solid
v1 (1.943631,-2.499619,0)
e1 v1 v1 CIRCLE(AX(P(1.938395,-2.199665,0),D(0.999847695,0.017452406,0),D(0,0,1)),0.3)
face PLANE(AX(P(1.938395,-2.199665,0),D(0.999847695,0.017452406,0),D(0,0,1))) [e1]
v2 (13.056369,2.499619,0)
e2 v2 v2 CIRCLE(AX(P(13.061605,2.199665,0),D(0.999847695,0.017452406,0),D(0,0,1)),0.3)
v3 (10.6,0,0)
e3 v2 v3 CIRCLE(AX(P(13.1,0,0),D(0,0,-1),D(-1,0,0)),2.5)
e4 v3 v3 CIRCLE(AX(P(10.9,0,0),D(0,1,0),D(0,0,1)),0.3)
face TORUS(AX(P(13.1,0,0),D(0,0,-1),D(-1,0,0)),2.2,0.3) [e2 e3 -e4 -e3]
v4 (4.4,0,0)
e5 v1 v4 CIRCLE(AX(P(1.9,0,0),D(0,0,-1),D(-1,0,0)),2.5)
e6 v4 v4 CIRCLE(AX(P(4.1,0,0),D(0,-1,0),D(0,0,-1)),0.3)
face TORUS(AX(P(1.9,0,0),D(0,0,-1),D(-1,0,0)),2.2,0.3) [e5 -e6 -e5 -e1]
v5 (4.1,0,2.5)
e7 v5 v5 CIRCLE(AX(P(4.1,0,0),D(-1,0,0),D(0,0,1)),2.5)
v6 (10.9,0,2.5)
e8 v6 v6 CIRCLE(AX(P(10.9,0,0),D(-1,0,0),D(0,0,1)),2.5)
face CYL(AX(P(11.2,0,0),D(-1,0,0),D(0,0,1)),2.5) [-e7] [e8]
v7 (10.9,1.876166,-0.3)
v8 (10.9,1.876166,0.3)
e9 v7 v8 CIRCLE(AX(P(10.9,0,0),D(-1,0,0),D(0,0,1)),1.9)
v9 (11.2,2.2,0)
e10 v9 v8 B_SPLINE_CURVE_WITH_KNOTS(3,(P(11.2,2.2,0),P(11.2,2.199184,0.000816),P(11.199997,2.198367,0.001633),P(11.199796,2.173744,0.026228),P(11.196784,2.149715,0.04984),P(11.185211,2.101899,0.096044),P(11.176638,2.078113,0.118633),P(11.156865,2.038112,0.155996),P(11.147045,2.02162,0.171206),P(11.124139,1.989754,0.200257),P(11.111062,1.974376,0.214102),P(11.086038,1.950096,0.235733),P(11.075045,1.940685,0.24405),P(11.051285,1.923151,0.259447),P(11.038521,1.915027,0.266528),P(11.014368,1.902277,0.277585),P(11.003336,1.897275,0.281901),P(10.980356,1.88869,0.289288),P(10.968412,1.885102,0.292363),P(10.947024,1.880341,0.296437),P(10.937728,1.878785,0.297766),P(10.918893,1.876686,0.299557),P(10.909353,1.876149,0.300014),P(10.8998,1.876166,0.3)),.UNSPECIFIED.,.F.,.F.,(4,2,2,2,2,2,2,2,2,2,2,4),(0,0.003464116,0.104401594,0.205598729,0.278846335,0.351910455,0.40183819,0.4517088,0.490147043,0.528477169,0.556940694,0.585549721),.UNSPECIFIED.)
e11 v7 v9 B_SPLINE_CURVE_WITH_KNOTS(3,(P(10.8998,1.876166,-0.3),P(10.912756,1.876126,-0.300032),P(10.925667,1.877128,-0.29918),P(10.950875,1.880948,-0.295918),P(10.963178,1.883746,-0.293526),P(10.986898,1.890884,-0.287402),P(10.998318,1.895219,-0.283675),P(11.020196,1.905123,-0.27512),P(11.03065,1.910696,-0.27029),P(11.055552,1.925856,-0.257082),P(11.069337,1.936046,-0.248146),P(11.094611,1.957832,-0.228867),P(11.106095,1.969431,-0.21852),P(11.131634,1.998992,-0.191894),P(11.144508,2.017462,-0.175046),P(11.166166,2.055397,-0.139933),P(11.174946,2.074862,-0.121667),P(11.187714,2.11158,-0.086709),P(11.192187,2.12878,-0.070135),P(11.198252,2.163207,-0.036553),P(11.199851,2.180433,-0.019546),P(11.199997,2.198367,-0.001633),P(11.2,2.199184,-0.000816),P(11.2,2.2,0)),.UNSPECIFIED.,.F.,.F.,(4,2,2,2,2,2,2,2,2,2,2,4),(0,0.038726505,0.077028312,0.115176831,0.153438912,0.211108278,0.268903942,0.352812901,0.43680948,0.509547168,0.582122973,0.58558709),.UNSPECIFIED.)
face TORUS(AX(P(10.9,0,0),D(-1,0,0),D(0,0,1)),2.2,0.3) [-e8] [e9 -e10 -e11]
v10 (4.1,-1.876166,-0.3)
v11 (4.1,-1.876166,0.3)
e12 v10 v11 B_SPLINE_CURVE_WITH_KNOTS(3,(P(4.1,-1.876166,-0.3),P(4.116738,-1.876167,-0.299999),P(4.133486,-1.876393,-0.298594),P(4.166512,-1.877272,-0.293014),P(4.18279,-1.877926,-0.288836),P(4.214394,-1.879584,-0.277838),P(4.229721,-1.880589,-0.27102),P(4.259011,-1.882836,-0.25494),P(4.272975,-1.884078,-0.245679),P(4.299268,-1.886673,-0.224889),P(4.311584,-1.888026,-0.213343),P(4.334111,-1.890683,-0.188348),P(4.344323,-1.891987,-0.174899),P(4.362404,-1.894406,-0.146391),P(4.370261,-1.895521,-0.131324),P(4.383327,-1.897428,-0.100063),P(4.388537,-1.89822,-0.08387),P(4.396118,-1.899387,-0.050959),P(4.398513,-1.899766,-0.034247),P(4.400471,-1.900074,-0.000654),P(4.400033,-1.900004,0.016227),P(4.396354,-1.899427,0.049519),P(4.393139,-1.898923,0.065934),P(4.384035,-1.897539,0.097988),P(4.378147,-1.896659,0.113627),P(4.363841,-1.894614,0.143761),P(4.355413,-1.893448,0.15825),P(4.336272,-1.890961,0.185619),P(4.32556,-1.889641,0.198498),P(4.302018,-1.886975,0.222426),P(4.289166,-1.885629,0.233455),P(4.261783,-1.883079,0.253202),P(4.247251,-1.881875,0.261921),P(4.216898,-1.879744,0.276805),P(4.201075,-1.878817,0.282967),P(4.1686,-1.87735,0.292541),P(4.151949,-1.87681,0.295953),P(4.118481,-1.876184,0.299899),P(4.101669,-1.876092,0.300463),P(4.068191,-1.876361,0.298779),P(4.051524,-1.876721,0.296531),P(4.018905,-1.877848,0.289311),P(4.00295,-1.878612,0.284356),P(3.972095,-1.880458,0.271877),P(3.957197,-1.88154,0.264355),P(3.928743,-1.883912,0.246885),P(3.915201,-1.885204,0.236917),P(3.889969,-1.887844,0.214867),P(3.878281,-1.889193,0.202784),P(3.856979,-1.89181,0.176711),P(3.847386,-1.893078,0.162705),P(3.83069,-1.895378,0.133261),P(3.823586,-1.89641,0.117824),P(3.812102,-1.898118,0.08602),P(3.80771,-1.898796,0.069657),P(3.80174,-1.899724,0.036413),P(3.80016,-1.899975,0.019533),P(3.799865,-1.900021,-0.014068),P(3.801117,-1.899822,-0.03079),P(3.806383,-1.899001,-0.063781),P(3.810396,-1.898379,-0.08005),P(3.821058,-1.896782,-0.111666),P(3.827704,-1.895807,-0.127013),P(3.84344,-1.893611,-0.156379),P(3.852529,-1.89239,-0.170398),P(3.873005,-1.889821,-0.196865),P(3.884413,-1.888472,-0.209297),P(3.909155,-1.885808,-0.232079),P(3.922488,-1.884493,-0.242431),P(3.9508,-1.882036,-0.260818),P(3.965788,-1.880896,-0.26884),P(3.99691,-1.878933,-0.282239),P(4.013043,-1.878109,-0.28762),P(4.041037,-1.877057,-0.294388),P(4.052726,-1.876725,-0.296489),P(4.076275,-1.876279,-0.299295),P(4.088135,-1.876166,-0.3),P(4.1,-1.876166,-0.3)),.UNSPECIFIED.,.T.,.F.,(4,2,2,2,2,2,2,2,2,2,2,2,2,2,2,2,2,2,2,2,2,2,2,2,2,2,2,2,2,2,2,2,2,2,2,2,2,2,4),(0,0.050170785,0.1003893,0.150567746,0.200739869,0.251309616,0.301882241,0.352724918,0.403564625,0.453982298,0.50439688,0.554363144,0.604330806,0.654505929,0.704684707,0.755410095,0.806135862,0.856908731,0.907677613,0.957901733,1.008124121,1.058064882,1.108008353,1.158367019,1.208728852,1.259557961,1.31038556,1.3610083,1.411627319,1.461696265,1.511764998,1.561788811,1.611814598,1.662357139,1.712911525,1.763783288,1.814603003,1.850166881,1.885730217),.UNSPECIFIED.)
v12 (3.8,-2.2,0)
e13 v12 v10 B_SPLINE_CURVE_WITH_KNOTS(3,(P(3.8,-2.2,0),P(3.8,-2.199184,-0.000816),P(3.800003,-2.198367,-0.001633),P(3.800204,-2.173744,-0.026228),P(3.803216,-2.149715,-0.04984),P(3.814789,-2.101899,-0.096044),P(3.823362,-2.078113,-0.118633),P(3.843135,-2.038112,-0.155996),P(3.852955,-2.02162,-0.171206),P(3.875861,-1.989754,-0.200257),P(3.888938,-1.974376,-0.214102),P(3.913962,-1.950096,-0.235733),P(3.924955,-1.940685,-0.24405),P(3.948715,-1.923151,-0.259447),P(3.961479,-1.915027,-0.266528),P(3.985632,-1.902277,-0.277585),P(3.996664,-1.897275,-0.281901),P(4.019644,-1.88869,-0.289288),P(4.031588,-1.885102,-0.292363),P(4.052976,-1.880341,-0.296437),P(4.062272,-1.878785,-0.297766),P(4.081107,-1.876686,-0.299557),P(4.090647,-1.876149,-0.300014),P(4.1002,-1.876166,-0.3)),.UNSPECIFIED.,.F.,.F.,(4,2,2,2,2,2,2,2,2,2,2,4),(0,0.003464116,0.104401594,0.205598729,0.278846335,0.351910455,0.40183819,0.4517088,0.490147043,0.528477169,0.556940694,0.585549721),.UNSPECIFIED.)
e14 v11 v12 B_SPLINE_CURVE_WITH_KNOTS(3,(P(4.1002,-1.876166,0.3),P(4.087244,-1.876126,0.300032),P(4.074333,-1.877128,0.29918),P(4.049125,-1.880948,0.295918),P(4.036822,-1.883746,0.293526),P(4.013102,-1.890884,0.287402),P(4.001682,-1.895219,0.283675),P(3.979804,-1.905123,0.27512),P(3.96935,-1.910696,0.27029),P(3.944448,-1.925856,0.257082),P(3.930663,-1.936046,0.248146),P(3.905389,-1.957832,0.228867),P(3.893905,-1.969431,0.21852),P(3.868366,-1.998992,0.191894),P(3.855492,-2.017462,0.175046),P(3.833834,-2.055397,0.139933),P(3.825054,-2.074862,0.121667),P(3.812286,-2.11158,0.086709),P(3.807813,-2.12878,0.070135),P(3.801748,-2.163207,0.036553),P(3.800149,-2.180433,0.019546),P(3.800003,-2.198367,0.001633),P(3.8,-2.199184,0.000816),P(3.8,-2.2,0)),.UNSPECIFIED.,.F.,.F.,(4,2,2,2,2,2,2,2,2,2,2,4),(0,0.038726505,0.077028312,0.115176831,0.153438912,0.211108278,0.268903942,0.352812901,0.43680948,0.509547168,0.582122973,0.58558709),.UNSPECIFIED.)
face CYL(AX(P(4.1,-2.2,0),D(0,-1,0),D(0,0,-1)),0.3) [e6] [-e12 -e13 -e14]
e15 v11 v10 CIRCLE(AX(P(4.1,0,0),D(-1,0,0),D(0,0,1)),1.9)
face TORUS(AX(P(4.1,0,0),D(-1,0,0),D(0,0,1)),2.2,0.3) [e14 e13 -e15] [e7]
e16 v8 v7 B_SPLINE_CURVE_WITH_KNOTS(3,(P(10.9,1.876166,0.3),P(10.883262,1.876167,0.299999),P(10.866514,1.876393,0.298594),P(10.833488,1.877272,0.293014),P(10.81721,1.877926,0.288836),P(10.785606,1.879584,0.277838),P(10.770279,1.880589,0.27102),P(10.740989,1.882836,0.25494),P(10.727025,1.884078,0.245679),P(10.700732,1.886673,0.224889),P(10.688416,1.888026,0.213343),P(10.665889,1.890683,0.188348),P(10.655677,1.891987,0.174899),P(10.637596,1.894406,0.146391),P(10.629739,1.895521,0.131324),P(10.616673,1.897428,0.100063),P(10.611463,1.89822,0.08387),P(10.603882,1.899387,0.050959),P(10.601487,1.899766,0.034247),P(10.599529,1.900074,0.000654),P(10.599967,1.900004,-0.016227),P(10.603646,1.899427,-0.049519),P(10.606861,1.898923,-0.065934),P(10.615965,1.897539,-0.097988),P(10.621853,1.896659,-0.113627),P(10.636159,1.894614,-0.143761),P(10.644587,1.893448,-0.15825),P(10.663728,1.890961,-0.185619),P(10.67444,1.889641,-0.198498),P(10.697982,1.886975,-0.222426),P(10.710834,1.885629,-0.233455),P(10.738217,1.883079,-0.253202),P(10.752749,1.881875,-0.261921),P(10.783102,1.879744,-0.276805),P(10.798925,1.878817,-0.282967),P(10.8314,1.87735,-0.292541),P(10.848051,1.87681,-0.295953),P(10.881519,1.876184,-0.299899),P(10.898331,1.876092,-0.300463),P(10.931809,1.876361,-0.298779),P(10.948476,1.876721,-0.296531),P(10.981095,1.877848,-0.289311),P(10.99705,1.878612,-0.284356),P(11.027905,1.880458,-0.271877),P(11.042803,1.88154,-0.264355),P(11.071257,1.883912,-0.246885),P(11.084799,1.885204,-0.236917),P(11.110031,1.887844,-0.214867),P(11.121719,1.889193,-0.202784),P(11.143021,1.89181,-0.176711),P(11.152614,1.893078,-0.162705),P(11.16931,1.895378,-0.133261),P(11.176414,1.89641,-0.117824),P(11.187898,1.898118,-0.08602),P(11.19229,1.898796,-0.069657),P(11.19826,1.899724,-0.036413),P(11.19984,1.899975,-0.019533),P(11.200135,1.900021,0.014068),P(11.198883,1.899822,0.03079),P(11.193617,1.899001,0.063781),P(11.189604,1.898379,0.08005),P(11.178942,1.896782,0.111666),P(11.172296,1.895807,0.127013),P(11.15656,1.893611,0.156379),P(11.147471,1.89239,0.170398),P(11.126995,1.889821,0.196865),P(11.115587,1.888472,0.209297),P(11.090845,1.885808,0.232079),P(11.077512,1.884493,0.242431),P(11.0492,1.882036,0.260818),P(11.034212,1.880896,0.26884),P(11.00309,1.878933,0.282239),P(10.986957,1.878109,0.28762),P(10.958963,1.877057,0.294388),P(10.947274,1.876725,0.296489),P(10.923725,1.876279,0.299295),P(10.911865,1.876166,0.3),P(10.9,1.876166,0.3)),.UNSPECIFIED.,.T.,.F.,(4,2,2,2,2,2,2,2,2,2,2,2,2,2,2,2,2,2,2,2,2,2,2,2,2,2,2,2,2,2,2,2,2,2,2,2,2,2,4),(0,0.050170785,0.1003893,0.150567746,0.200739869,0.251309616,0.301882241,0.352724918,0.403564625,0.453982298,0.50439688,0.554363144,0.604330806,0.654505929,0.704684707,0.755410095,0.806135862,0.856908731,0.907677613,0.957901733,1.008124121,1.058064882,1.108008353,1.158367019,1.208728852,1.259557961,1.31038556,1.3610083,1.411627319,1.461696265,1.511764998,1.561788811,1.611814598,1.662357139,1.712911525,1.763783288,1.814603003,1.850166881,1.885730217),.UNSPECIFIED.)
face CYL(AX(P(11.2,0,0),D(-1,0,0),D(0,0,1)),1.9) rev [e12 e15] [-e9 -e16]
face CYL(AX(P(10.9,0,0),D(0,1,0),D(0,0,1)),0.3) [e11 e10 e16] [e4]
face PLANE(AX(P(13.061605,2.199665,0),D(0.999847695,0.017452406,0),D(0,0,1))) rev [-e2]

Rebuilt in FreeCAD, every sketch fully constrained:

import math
import FreeCAD as App
import Part
import Sketcher
from FreeCAD import Vector
Q = App.Units.Quantity


def add_polygon(sketch, points):
    """Adds a closed chain of lines whose ends are joined by coincident constraints."""
    first, n = sketch.GeometryCount, len(points)
    for a, b in zip(points, points[1:] + points[:1]):
        sketch.addGeometry(Part.LineSegment(App.Vector(*a, 0), App.Vector(*b, 0)), False)
    for i in range(n):
        sketch.addConstraint(Sketcher.Constraint("Coincident", first + i, 2, first + (i + 1) % n, 1))

doc = App.newDocument("Part")
body = doc.addObject("PartDesign::Body", "Body")

# Sketch on XY plane
sketch1 = doc.addObject("Sketcher::SketchObject", "Sketch")
body.addObject(sketch1)
sketch1.AttachmentSupport = (doc.XY_Plane, [""])
sketch1.MapMode = "FlatFace"
sketch1.addGeometry([
    Part.LineSegment(Vector(4.1, 1.9, 0), Vector(10.9, 1.9, 0)),
    Part.ArcOfCircle(Part.Circle(Vector(10.9, 2.2, 0), Vector(0, 0, 1), 0.3), math.radians(-90), math.radians(90)),
    Part.LineSegment(Vector(10.9, 2.5, 0), Vector(4.1, 2.5, 0)),
    Part.ArcOfCircle(Part.Circle(Vector(4.1, 2.2, 0), Vector(0, 0, 1), 0.3), math.radians(90), math.radians(270)),
], False)
sketch1.addConstraint([
    Sketcher.Constraint("Tangent", 0, 2, 1, 1),
    Sketcher.Constraint("Tangent", 1, 2, 2, 1),
    Sketcher.Constraint("Tangent", 2, 2, 3, 1),
    Sketcher.Constraint("Tangent", 3, 2, 0, 1),
    Sketcher.Constraint("Horizontal", 0),
    Sketcher.Constraint("Horizontal", 2),
    Sketcher.Constraint("Radius", 1, Q("0.3 mm")),
    Sketcher.Constraint("DistanceX", 0, 1, 0, 2, Q("6.8 mm")),
    Sketcher.Constraint("DistanceX", -1, 1, 1, 3, Q("10.9 mm")),
    Sketcher.Constraint("DistanceY", -1, 1, 1, 3, Q("2.2 mm")),
])
revolution = doc.addObject("PartDesign::Revolution", "Revolution")
body.addObject(revolution)
revolution.Profile = sketch1
revolution.ReferenceAxis = (sketch1, ["H_Axis"])
revolution.Angle = 360

# Sketch on XY plane
sketch2 = doc.addObject("Sketcher::SketchObject", "Sketch001")
body.addObject(sketch2)
sketch2.AttachmentSupport = (doc.XY_Plane, [""])
sketch2.MapMode = "FlatFace"
add_polygon(sketch2, [(10.9, 2.2), (10.9, 0), (11.2, 0), (11.2, 2.2)])  # lines 0-3
sketch2.addGeometry(Part.LineSegment(Vector(10.9, 0, 0), Vector(10.9, 2.2, 0)), True)  # axis
sketch2.addConstraint([
    Sketcher.Constraint("Vertical", 0),
    Sketcher.Constraint("Horizontal", 1),
    Sketcher.Constraint("Vertical", 2),
    Sketcher.Constraint("Horizontal", 3),
    Sketcher.Constraint("Vertical", 4),
    Sketcher.Constraint("Coincident", 4, 1, 0, 2),
    Sketcher.Constraint("PointOnObject", 0, 2, -1),
    Sketcher.Constraint("Horizontal", 2, 2, 4, 2),
    Sketcher.Constraint("DistanceX", 1, 1, 1, 2, Q("0.3 mm")),
    Sketcher.Constraint("DistanceY", 0, 2, 0, 1, Q("2.2 mm")),
    Sketcher.Constraint("DistanceX", -1, 1, 0, 2, Q("10.9 mm")),
])
revolution2 = doc.addObject("PartDesign::Revolution", "Revolution001")
body.addObject(revolution2)
revolution2.Profile = sketch2
revolution2.ReferenceAxis = (sketch2, ["Axis0"])
revolution2.Angle = 360

# Sketch on XZ plane
sketch3 = doc.addObject("Sketcher::SketchObject", "Sketch002")
body.addObject(sketch3)
sketch3.AttachmentSupport = (doc.XZ_Plane, [""])
sketch3.MapMode = "FlatFace"
sketch3.addGeometry(Part.Circle(Vector(10.9, 0, 0), Vector(0, 0, 1), 0.3), False)
sketch3.addGeometry(Part.LineSegment(Vector(13.1, 0, 0), Vector(13.1, 10, 0)), True)  # axis
sketch3.addConstraint([
    Sketcher.Constraint("Vertical", 1),
    Sketcher.Constraint("PointOnObject", 0, 3, -1),
    Sketcher.Constraint("PointOnObject", 1, 1, -1),
    Sketcher.Constraint("Diameter", 0, Q("0.6 mm")),
    Sketcher.Constraint("DistanceY", 1, 1, 1, 2, Q("10 mm")),
    Sketcher.Constraint("DistanceX", -1, 1, 0, 3, Q("10.9 mm")),
    Sketcher.Constraint("DistanceX", -1, 1, 1, 1, Q("13.1 mm")),
])
revolution3 = doc.addObject("PartDesign::Revolution", "Revolution002")
body.addObject(revolution3)
revolution3.Profile = sketch3
revolution3.ReferenceAxis = (sketch3, ["Axis0"])
revolution3.Angle = 271

# Sketch on XY plane
sketch4 = doc.addObject("Sketcher::SketchObject", "Sketch003")
body.addObject(sketch4)
sketch4.AttachmentSupport = (doc.XY_Plane, [""])
sketch4.MapMode = "FlatFace"
add_polygon(sketch4, [(4.1, 0), (4.1, -2.2), (4.4, -2.2), (4.4, 0)])  # lines 0-3
sketch4.addGeometry(Part.LineSegment(Vector(4.1, -2.2, 0), Vector(4.1, 0, 0)), True)  # axis
sketch4.addConstraint([
    Sketcher.Constraint("Vertical", 0),
    Sketcher.Constraint("Horizontal", 1),
    Sketcher.Constraint("Vertical", 2),
    Sketcher.Constraint("Horizontal", 3),
    Sketcher.Constraint("Vertical", 4),
    Sketcher.Constraint("Coincident", 4, 1, 0, 2),
    Sketcher.Constraint("PointOnObject", 2, 2, -1),
    Sketcher.Constraint("PointOnObject", 4, 2, -1),
    Sketcher.Constraint("DistanceX", 1, 1, 1, 2, Q("0.3 mm")),
    Sketcher.Constraint("DistanceY", 0, 2, 0, 1, Q("2.2 mm")),
    Sketcher.Constraint("DistanceX", -1, 1, 0, 2, Q("4.1 mm")),
])
revolution4 = doc.addObject("PartDesign::Revolution", "Revolution003")
body.addObject(revolution4)
revolution4.Profile = sketch4
revolution4.ReferenceAxis = (sketch4, ["Axis0"])
revolution4.Angle = 360

# Sketch on XZ plane
sketch5 = doc.addObject("Sketcher::SketchObject", "Sketch004")
body.addObject(sketch5)
sketch5.AttachmentSupport = (doc.XZ_Plane, [""])
sketch5.MapMode = "FlatFace"
sketch5.addGeometry(Part.Circle(Vector(4.1, 0, 0), Vector(0, 0, 1), 0.3), False)
sketch5.addGeometry(Part.LineSegment(Vector(1.9, 0, 0), Vector(1.9, 10, 0)), True)  # axis
sketch5.addConstraint([
    Sketcher.Constraint("Vertical", 1),
    Sketcher.Constraint("PointOnObject", 0, 3, -1),
    Sketcher.Constraint("PointOnObject", 1, 1, -1),
    Sketcher.Constraint("Diameter", 0, Q("0.6 mm")),
    Sketcher.Constraint("DistanceY", 1, 1, 1, 2, Q("10 mm")),
    Sketcher.Constraint("DistanceX", -1, 1, 0, 3, Q("4.1 mm")),
    Sketcher.Constraint("DistanceX", -1, 1, 1, 1, Q("1.9 mm")),
])
revolution5 = doc.addObject("PartDesign::Revolution", "Revolution004")
body.addObject(revolution5)
revolution5.Profile = sketch5
revolution5.ReferenceAxis = (sketch5, ["Axis0"])
revolution5.Angle = 271

doc.recompute()
